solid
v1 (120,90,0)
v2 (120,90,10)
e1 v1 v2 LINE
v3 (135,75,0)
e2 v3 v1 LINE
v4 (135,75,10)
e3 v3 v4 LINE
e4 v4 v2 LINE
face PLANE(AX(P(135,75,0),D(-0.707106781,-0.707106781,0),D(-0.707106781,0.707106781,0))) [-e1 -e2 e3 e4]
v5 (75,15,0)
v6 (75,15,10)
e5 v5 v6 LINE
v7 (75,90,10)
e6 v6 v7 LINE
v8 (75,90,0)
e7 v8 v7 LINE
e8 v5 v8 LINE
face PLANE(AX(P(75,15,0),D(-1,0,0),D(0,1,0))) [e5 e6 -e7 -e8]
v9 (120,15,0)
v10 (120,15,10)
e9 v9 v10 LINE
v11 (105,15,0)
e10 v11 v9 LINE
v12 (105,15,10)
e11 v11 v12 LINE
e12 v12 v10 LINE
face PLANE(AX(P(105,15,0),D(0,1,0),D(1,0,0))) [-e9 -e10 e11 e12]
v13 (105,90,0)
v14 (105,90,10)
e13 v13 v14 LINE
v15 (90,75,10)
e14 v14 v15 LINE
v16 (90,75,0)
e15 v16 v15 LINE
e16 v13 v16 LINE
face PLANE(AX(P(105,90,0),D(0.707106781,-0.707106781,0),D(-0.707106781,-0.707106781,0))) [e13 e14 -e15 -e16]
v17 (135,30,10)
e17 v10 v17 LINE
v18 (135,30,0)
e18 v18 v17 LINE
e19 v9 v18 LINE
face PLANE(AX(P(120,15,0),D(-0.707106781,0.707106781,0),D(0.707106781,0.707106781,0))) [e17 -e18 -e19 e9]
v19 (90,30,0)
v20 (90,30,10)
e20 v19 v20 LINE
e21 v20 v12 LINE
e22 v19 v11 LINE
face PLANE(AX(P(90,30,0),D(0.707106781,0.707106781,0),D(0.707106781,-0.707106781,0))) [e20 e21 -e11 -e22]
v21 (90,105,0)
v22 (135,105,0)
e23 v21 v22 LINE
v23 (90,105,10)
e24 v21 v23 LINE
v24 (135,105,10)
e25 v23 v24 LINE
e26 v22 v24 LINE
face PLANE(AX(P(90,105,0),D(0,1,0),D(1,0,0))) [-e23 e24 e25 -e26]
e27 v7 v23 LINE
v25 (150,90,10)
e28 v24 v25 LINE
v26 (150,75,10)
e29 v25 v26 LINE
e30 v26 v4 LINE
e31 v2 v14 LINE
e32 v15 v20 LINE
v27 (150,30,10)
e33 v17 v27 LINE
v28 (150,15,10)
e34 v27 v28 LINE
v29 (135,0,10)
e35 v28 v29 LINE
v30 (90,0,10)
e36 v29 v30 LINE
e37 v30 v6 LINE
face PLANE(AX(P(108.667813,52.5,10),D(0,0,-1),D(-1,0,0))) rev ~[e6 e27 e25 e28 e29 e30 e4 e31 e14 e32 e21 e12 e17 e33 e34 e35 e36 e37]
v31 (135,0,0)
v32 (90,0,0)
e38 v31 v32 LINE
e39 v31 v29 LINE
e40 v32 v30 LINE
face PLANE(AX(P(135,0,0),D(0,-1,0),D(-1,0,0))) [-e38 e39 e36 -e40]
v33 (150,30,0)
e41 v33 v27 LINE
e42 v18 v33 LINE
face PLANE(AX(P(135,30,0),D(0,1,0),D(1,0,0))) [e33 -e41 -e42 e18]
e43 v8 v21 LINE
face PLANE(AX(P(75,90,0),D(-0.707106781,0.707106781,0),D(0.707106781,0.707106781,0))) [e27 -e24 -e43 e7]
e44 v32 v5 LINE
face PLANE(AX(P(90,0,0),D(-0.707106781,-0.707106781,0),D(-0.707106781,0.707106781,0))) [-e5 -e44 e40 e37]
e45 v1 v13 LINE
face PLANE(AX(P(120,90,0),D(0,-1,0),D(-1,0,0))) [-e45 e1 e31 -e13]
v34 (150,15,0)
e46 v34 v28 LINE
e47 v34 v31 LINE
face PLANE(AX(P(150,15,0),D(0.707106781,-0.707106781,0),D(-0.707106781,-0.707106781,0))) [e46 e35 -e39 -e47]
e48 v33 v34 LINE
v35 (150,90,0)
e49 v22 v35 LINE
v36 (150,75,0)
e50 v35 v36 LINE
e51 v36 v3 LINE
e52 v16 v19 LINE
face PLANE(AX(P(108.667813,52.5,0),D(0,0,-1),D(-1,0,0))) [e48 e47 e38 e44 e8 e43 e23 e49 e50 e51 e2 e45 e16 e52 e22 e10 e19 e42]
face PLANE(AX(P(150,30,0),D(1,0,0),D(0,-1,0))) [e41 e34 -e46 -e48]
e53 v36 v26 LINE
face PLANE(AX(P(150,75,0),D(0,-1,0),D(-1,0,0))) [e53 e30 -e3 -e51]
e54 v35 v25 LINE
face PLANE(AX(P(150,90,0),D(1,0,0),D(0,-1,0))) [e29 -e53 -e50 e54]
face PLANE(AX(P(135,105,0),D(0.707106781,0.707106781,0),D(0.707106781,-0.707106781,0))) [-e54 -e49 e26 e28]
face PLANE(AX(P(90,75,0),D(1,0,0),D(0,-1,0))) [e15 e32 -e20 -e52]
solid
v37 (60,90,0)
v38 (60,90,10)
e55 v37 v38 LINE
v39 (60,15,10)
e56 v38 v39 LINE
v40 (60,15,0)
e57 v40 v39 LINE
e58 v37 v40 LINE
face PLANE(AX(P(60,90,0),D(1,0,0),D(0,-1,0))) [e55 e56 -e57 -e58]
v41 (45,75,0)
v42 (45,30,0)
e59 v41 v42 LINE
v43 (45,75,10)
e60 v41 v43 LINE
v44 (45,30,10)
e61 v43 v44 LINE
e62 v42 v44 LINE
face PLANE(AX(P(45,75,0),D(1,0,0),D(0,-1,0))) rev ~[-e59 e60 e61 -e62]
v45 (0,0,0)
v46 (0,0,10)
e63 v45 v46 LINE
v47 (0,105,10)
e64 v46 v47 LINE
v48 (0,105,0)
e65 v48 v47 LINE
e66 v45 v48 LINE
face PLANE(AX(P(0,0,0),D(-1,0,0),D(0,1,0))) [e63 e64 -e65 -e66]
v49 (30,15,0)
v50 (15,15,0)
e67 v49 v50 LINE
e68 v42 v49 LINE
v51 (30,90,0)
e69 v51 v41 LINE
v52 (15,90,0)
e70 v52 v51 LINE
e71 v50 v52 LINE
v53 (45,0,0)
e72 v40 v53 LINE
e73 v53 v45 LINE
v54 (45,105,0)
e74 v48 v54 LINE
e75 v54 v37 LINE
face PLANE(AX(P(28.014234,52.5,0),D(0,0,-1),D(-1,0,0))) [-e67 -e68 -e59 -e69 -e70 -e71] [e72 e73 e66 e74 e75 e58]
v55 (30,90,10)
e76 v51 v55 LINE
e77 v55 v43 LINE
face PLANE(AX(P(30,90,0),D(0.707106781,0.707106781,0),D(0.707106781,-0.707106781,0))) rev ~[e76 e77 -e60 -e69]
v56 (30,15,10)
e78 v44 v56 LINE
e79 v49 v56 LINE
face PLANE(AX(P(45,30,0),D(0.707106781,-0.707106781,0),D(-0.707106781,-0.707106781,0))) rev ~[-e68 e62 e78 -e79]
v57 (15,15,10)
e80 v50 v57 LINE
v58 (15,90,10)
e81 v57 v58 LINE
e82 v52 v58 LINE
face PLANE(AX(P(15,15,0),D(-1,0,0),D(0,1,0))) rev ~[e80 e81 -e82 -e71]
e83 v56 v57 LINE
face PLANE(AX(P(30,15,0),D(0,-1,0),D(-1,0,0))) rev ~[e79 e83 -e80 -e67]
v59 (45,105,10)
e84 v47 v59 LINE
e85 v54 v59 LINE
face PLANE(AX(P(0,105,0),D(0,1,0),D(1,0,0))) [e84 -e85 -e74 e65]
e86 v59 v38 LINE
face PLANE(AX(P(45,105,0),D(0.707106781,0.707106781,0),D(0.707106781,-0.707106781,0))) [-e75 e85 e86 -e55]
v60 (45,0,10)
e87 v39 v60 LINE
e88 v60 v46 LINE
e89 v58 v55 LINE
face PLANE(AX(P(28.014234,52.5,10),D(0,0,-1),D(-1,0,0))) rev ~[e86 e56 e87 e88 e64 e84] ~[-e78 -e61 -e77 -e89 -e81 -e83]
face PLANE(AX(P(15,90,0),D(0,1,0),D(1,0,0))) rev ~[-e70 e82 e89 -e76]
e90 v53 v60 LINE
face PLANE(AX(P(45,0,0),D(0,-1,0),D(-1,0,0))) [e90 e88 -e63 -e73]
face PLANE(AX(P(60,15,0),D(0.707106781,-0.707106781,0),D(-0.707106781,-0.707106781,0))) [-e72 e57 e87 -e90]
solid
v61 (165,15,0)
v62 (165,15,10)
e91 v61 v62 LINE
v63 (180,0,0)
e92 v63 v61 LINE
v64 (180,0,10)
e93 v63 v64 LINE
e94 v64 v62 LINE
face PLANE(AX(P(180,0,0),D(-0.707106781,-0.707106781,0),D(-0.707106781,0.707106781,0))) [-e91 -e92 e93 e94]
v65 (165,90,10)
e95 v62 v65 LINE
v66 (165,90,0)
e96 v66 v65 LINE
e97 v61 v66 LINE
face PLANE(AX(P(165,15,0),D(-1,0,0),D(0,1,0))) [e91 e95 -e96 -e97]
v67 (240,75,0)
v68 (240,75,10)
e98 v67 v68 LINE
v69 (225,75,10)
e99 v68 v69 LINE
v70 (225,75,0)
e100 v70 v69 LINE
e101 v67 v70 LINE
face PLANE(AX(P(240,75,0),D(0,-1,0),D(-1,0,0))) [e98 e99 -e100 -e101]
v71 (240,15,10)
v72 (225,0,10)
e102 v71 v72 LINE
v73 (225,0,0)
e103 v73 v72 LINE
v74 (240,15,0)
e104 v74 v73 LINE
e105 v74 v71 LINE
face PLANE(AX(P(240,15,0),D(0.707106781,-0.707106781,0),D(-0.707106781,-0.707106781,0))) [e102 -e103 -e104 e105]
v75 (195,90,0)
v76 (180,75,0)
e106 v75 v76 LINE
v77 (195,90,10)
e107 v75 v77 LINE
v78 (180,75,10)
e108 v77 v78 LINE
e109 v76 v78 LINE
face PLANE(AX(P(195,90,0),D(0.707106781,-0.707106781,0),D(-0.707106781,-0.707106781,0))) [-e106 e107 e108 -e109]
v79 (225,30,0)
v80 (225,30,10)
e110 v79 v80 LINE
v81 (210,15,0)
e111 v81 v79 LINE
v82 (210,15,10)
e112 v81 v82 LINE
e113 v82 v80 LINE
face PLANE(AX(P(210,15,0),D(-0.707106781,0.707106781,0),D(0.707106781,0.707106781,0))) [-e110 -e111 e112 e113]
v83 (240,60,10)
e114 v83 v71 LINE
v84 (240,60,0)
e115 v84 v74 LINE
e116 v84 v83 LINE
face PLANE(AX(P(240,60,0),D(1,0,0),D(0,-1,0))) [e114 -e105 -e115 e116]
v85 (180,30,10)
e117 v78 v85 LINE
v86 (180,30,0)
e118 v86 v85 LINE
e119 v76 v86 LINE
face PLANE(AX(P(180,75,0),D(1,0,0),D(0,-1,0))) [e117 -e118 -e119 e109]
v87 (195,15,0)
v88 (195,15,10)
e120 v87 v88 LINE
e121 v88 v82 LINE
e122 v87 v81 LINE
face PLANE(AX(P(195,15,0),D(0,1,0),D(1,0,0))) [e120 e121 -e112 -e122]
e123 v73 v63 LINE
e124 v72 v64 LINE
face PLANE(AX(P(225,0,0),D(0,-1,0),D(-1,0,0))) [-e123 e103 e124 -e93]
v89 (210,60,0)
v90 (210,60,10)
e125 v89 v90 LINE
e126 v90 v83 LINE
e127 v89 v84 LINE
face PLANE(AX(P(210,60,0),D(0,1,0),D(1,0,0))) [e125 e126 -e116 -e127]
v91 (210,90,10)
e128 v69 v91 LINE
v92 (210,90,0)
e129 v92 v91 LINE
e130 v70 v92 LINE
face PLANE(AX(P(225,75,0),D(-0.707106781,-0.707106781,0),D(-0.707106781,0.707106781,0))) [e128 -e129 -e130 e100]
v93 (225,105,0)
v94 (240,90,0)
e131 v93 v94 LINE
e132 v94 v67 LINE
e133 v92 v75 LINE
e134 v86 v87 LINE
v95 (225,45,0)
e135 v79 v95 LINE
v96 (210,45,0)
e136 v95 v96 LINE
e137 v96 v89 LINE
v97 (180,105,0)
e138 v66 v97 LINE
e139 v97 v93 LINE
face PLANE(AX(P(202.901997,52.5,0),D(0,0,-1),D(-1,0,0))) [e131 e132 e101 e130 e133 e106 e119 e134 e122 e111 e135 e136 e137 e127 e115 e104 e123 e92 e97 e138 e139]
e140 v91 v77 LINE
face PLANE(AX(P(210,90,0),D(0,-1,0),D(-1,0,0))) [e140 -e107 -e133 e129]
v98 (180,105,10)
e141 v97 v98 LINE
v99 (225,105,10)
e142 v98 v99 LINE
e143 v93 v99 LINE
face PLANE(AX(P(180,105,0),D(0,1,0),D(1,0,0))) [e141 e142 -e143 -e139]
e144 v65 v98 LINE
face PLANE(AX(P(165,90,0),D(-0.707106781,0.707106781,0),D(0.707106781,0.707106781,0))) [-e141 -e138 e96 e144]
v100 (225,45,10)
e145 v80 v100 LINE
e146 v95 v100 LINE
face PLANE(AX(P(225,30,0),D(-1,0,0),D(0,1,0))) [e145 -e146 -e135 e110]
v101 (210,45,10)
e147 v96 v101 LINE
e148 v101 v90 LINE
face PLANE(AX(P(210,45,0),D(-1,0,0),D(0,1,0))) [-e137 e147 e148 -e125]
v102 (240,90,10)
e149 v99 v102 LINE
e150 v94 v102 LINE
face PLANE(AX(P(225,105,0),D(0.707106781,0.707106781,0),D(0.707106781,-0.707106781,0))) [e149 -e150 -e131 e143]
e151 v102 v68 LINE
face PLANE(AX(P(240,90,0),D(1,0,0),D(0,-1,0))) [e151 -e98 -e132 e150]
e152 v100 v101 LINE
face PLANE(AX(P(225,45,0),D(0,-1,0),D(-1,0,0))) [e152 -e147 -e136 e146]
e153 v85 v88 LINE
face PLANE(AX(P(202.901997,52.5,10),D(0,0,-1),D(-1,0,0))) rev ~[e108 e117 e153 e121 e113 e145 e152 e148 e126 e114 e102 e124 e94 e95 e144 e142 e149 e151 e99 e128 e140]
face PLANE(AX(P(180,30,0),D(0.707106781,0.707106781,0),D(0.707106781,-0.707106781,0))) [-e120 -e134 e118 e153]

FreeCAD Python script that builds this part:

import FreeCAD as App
import Part
import Sketcher

V = App.Vector
Q = App.Units.Quantity


def add_polygon(sketch, points):
    """Adds a closed chain of lines whose ends are joined by coincident constraints."""
    first, n = sketch.GeometryCount, len(points)
    for a, b in zip(points, points[1:] + points[:1]):
        sketch.addGeometry(Part.LineSegment(App.Vector(*a, 0), App.Vector(*b, 0)), False)
    for i in range(n):
        sketch.addConstraint(Sketcher.Constraint("Coincident", first + i, 2, first + (i + 1) % n, 1))

doc = App.newDocument("Part")
params = doc.addObject("Spreadsheet::Sheet", "Params")
for row, (alias, value) in enumerate([
    ("sketch1_width", "45 mm"),
    ("sketch1_width2", "15 mm"),
    ("sketch1_height", "105 mm"),
    ("pad1_length", "10 mm"),
    ("sketch2_width", "45 mm"),
    ("pad2_length", "10 mm"),
    ("sketch3_width", "45 mm"),
    ("pad3_length", "10 mm"),
], start=1):
    params.set(f"A{row}", alias)
    params.set(f"B{row}", "=" + value)
    params.setAlias(f"B{row}", alias)

body = doc.addObject("PartDesign::Body", "Body")

# Sketch on XY plane
sketch1 = body.newObject("Sketcher::SketchObject", "Sketch")
sketch1.AttachmentSupport = (doc.getObject("XY_Plane"), [""])
sketch1.MapMode = "FlatFace"
add_polygon(sketch1, [(0, 105), (0, 0), (45, 0), (60, 15), (60, 90), (45, 105)])  # lines 0-5
add_polygon(sketch1, [(15, 90), (30, 90), (45, 75), (45, 30), (30, 15), (15, 15)])  # lines 6-11
sketch1.addConstraint(Sketcher.Constraint("Vertical", 0))
sketch1.addConstraint(Sketcher.Constraint("Horizontal", 1))
sketch1.addConstraint(Sketcher.Constraint("Vertical", 3))
sketch1.addConstraint(Sketcher.Constraint("Horizontal", 5))
sketch1.addConstraint(Sketcher.Constraint("Horizontal", 6))
sketch1.addConstraint(Sketcher.Constraint("Vertical", 8))
sketch1.addConstraint(Sketcher.Constraint("Horizontal", 10))
sketch1.addConstraint(Sketcher.Constraint("Vertical", 11))
sketch1.addConstraint(Sketcher.Constraint("Coincident", 0, 2, -1, 1))
sketch1.addConstraint(Sketcher.Constraint("Perpendicular", 2, 4))
sketch1.addConstraint(Sketcher.Constraint("Parallel", 4, 7))
sketch1.addConstraint(Sketcher.Constraint("Perpendicular", 7, 9))
sketch1.addConstraint(Sketcher.Constraint("Horizontal", 3, 2, 6, 2))
sketch1.addConstraint(Sketcher.Constraint("Horizontal", 2, 2, 9, 2))
sketch1.addConstraint(Sketcher.Constraint("Vertical", 1, 2, 4, 2))
sketch1.addConstraint(Sketcher.Constraint("Vertical", 4, 2, 7, 2))
sketch1.addConstraint(Sketcher.Constraint("Vertical", 6, 2, 9, 2))
sketch1.addConstraint(Sketcher.Constraint("Equal", 5, 8))
sketch1.addConstraint(Sketcher.Constraint("Equal", 2, 4))
sketch1.addConstraint(Sketcher.Constraint("Equal", 4, 7))
sketch1.addConstraint(Sketcher.Constraint("DistanceX", 1, 1, 1, 2, Q("45 mm")))
sketch1.addConstraint(Sketcher.Constraint("DistanceX", 6, 1, 6, 2, Q("15 mm")))
sketch1.addConstraint(Sketcher.Constraint("DistanceY", 0, 2, 0, 1, Q("105 mm")))
sketch1.setExpression("Constraints[32]", "Params.sketch1_width")
sketch1.setExpression("Constraints[33]", "Params.sketch1_width2")
sketch1.setExpression("Constraints[34]", "Params.sketch1_height")
pad1 = body.newObject("PartDesign::Pad", "Pad")
pad1.Profile = sketch1
pad1.setExpression("Length", "Params.pad1_length")
body2 = doc.addObject("PartDesign::Body", "Body001")

# Sketch on XY plane
sketch2 = body2.newObject("Sketcher::SketchObject", "Sketch001")
sketch2.AttachmentSupport = (doc.getObject("XY_Plane001"), [""])
sketch2.MapMode = "FlatFace"
add_polygon(sketch2, [(75, 15), (90, 0), (135, 0), (150, 15), (150, 30), (135, 30), (120, 15), (105, 15), (90, 30), (90, 75), (105, 90), (120, 90), (135, 75), (150, 75), (150, 90), (135, 105), (90, 105), (75, 90)])  # lines 0-17
sketch2.addConstraint(Sketcher.Constraint("Horizontal", 1))
sketch2.addConstraint(Sketcher.Constraint("Vertical", 3))
sketch2.addConstraint(Sketcher.Constraint("Horizontal", 4))
sketch2.addConstraint(Sketcher.Constraint("Horizontal", 6))
sketch2.addConstraint(Sketcher.Constraint("Vertical", 8))
sketch2.addConstraint(Sketcher.Constraint("Horizontal", 10))
sketch2.addConstraint(Sketcher.Constraint("Horizontal", 12))
sketch2.addConstraint(Sketcher.Constraint("Vertical", 13))
sketch2.addConstraint(Sketcher.Constraint("Horizontal", 15))
sketch2.addConstraint(Sketcher.Constraint("Vertical", 17))
sketch2.addConstraint(Sketcher.Constraint("PointOnObject", 0, 2, -1))
sketch2.addConstraint(Sketcher.Constraint("Perpendicular", 0, 2))
sketch2.addConstraint(Sketcher.Constraint("Parallel", 2, 5))
sketch2.addConstraint(Sketcher.Constraint("Perpendicular", 5, 7))
sketch2.addConstraint(Sketcher.Constraint("Perpendicular", 7, 9))
sketch2.addConstraint(Sketcher.Constraint("Perpendicular", 9, 11))
sketch2.addConstraint(Sketcher.Constraint("Parallel", 11, 14))
sketch2.addConstraint(Sketcher.Constraint("Perpendicular", 14, 16))
sketch2.addConstraint(Sketcher.Constraint("Horizontal", 2, 2, 5, 2))
sketch2.addConstraint(Sketcher.Constraint("Horizontal", 4, 2, 7, 2))
sketch2.addConstraint(Sketcher.Constraint("Horizontal", 8, 2, 11, 2))
sketch2.addConstraint(Sketcher.Constraint("Horizontal", 10, 2, 13, 2))
sketch2.addConstraint(Sketcher.Constraint("Horizontal", 13, 2, 16, 2))
sketch2.addConstraint(Sketcher.Constraint("Horizontal", 6, 2, 17, 2))
sketch2.addConstraint(Sketcher.Constraint("Vertical", 1, 2, 4, 2))
sketch2.addConstraint(Sketcher.Constraint("Vertical", 0, 2, 7, 2))
sketch2.addConstraint(Sketcher.Constraint("Vertical", 6, 2, 9, 2))
sketch2.addConstraint(Sketcher.Constraint("Vertical", 5, 2, 10, 2))
sketch2.addConstraint(Sketcher.Constraint("Vertical", 4, 2, 11, 2))
sketch2.addConstraint(Sketcher.Constraint("Vertical", 3, 2, 12, 2))
sketch2.addConstraint(Sketcher.Constraint("Vertical", 11, 2, 14, 2))
sketch2.addConstraint(Sketcher.Constraint("Equal", 4, 6))
sketch2.addConstraint(Sketcher.Constraint("Equal", 12, 3))
sketch2.addConstraint(Sketcher.Constraint("Equal", 15, 8))
sketch2.addConstraint(Sketcher.Constraint("DistanceX", 1, 1, 1, 2, Q("45 mm")))
sketch2.addConstraint(Sketcher.Constraint("DistanceX", -1, 1, 0, 2, Q("90 mm")))
sketch2.setExpression("Constraints[52]", "Params.sketch2_width")
pad2 = body2.newObject("PartDesign::Pad", "Pad001")
pad2.Profile = sketch2
pad2.setExpression("Length", "Params.pad2_length")
body3 = doc.addObject("PartDesign::Body", "Body002")

# Sketch on XY plane
sketch3 = body3.newObject("Sketcher::SketchObject", "Sketch002")
sketch3.AttachmentSupport = (doc.getObject("XY_Plane002"), [""])
sketch3.MapMode = "FlatFace"
add_polygon(sketch3, [(165, 15), (180, 0), (225, 0), (240, 15), (240, 60), (210, 60), (210, 45), (225, 45), (225, 30), (210, 15), (195, 15), (180, 30), (180, 75), (195, 90), (210, 90), (225, 75), (240, 75), (240, 90), (225, 105), (180, 105), (165, 90)])  # lines 0-20
sketch3.addConstraint(Sketcher.Constraint("Horizontal", 1))
sketch3.addConstraint(Sketcher.Constraint("Vertical", 3))
sketch3.addConstraint(Sketcher.Constraint("Horizontal", 4))
sketch3.addConstraint(Sketcher.Constraint("Vertical", 5))
sketch3.addConstraint(Sketcher.Constraint("Horizontal", 6))
sketch3.addConstraint(Sketcher.Constraint("Vertical", 7))
sketch3.addConstraint(Sketcher.Constraint("Horizontal", 9))
sketch3.addConstraint(Sketcher.Constraint("Vertical", 11))
sketch3.addConstraint(Sketcher.Constraint("Horizontal", 13))
sketch3.addConstraint(Sketcher.Constraint("Horizontal", 15))
sketch3.addConstraint(Sketcher.Constraint("Vertical", 16))
sketch3.addConstraint(Sketcher.Constraint("Horizontal", 18))
sketch3.addConstraint(Sketcher.Constraint("Vertical", 20))
sketch3.addConstraint(Sketcher.Constraint("PointOnObject", 0, 2, -1))
sketch3.addConstraint(Sketcher.Constraint("Perpendicular", 0, 2))
sketch3.addConstraint(Sketcher.Constraint("Parallel", 2, 8))
sketch3.addConstraint(Sketcher.Constraint("Perpendicular", 8, 10))
sketch3.addConstraint(Sketcher.Constraint("Perpendicular", 10, 12))
sketch3.addConstraint(Sketcher.Constraint("Perpendicular", 12, 14))
sketch3.addConstraint(Sketcher.Constraint("Parallel", 14, 17))
sketch3.addConstraint(Sketcher.Constraint("Perpendicular", 17, 19))
sketch3.addConstraint(Sketcher.Constraint("Horizontal", 2, 2, 8, 2))
sketch3.addConstraint(Sketcher.Constraint("Horizontal", 7, 2, 10, 2))
sketch3.addConstraint(Sketcher.Constraint("Horizontal", 11, 2, 14, 2))
sketch3.addConstraint(Sketcher.Constraint("Horizontal", 13, 2, 16, 2))
sketch3.addConstraint(Sketcher.Constraint("Horizontal", 16, 2, 19, 2))
sketch3.addConstraint(Sketcher.Constraint("Horizontal", 9, 2, 20, 2))
sketch3.addConstraint(Sketcher.Constraint("Vertical", 1, 2, 6, 2))
sketch3.addConstraint(Sketcher.Constraint("Vertical", 5, 2, 8, 2))
sketch3.addConstraint(Sketcher.Constraint("Vertical", 0, 2, 10, 2))
sketch3.addConstraint(Sketcher.Constraint("Vertical", 9, 2, 12, 2))
sketch3.addConstraint(Sketcher.Constraint("Vertical", 8, 2, 13, 2))
sketch3.addConstraint(Sketcher.Constraint("Vertical", 7, 2, 14, 2))
sketch3.addConstraint(Sketcher.Constraint("Vertical", 3, 2, 15, 2))
sketch3.addConstraint(Sketcher.Constraint("Vertical", 14, 2, 17, 2))
sketch3.addConstraint(Sketcher.Constraint("Equal", 6, 9))
sketch3.addConstraint(Sketcher.Constraint("Equal", 13, 15))
sketch3.addConstraint(Sketcher.Constraint("Equal", 18, 3))
sketch3.addConstraint(Sketcher.Constraint("Equal", 15, 5))
sketch3.addConstraint(Sketcher.Constraint("Equal", 3, 11))
sketch3.addConstraint(Sketcher.Constraint("DistanceX", 1, 1, 1, 2, Q("45 mm")))
sketch3.addConstraint(Sketcher.Constraint("DistanceX", -1, 1, 0, 2, Q("180 mm")))
sketch3.setExpression("Constraints[61]", "Params.sketch3_width")
pad3 = body3.newObject("PartDesign::Pad", "Pad002")
pad3.Profile = sketch3
pad3.setExpression("Length", "Params.pad3_length")

doc.recompute()
